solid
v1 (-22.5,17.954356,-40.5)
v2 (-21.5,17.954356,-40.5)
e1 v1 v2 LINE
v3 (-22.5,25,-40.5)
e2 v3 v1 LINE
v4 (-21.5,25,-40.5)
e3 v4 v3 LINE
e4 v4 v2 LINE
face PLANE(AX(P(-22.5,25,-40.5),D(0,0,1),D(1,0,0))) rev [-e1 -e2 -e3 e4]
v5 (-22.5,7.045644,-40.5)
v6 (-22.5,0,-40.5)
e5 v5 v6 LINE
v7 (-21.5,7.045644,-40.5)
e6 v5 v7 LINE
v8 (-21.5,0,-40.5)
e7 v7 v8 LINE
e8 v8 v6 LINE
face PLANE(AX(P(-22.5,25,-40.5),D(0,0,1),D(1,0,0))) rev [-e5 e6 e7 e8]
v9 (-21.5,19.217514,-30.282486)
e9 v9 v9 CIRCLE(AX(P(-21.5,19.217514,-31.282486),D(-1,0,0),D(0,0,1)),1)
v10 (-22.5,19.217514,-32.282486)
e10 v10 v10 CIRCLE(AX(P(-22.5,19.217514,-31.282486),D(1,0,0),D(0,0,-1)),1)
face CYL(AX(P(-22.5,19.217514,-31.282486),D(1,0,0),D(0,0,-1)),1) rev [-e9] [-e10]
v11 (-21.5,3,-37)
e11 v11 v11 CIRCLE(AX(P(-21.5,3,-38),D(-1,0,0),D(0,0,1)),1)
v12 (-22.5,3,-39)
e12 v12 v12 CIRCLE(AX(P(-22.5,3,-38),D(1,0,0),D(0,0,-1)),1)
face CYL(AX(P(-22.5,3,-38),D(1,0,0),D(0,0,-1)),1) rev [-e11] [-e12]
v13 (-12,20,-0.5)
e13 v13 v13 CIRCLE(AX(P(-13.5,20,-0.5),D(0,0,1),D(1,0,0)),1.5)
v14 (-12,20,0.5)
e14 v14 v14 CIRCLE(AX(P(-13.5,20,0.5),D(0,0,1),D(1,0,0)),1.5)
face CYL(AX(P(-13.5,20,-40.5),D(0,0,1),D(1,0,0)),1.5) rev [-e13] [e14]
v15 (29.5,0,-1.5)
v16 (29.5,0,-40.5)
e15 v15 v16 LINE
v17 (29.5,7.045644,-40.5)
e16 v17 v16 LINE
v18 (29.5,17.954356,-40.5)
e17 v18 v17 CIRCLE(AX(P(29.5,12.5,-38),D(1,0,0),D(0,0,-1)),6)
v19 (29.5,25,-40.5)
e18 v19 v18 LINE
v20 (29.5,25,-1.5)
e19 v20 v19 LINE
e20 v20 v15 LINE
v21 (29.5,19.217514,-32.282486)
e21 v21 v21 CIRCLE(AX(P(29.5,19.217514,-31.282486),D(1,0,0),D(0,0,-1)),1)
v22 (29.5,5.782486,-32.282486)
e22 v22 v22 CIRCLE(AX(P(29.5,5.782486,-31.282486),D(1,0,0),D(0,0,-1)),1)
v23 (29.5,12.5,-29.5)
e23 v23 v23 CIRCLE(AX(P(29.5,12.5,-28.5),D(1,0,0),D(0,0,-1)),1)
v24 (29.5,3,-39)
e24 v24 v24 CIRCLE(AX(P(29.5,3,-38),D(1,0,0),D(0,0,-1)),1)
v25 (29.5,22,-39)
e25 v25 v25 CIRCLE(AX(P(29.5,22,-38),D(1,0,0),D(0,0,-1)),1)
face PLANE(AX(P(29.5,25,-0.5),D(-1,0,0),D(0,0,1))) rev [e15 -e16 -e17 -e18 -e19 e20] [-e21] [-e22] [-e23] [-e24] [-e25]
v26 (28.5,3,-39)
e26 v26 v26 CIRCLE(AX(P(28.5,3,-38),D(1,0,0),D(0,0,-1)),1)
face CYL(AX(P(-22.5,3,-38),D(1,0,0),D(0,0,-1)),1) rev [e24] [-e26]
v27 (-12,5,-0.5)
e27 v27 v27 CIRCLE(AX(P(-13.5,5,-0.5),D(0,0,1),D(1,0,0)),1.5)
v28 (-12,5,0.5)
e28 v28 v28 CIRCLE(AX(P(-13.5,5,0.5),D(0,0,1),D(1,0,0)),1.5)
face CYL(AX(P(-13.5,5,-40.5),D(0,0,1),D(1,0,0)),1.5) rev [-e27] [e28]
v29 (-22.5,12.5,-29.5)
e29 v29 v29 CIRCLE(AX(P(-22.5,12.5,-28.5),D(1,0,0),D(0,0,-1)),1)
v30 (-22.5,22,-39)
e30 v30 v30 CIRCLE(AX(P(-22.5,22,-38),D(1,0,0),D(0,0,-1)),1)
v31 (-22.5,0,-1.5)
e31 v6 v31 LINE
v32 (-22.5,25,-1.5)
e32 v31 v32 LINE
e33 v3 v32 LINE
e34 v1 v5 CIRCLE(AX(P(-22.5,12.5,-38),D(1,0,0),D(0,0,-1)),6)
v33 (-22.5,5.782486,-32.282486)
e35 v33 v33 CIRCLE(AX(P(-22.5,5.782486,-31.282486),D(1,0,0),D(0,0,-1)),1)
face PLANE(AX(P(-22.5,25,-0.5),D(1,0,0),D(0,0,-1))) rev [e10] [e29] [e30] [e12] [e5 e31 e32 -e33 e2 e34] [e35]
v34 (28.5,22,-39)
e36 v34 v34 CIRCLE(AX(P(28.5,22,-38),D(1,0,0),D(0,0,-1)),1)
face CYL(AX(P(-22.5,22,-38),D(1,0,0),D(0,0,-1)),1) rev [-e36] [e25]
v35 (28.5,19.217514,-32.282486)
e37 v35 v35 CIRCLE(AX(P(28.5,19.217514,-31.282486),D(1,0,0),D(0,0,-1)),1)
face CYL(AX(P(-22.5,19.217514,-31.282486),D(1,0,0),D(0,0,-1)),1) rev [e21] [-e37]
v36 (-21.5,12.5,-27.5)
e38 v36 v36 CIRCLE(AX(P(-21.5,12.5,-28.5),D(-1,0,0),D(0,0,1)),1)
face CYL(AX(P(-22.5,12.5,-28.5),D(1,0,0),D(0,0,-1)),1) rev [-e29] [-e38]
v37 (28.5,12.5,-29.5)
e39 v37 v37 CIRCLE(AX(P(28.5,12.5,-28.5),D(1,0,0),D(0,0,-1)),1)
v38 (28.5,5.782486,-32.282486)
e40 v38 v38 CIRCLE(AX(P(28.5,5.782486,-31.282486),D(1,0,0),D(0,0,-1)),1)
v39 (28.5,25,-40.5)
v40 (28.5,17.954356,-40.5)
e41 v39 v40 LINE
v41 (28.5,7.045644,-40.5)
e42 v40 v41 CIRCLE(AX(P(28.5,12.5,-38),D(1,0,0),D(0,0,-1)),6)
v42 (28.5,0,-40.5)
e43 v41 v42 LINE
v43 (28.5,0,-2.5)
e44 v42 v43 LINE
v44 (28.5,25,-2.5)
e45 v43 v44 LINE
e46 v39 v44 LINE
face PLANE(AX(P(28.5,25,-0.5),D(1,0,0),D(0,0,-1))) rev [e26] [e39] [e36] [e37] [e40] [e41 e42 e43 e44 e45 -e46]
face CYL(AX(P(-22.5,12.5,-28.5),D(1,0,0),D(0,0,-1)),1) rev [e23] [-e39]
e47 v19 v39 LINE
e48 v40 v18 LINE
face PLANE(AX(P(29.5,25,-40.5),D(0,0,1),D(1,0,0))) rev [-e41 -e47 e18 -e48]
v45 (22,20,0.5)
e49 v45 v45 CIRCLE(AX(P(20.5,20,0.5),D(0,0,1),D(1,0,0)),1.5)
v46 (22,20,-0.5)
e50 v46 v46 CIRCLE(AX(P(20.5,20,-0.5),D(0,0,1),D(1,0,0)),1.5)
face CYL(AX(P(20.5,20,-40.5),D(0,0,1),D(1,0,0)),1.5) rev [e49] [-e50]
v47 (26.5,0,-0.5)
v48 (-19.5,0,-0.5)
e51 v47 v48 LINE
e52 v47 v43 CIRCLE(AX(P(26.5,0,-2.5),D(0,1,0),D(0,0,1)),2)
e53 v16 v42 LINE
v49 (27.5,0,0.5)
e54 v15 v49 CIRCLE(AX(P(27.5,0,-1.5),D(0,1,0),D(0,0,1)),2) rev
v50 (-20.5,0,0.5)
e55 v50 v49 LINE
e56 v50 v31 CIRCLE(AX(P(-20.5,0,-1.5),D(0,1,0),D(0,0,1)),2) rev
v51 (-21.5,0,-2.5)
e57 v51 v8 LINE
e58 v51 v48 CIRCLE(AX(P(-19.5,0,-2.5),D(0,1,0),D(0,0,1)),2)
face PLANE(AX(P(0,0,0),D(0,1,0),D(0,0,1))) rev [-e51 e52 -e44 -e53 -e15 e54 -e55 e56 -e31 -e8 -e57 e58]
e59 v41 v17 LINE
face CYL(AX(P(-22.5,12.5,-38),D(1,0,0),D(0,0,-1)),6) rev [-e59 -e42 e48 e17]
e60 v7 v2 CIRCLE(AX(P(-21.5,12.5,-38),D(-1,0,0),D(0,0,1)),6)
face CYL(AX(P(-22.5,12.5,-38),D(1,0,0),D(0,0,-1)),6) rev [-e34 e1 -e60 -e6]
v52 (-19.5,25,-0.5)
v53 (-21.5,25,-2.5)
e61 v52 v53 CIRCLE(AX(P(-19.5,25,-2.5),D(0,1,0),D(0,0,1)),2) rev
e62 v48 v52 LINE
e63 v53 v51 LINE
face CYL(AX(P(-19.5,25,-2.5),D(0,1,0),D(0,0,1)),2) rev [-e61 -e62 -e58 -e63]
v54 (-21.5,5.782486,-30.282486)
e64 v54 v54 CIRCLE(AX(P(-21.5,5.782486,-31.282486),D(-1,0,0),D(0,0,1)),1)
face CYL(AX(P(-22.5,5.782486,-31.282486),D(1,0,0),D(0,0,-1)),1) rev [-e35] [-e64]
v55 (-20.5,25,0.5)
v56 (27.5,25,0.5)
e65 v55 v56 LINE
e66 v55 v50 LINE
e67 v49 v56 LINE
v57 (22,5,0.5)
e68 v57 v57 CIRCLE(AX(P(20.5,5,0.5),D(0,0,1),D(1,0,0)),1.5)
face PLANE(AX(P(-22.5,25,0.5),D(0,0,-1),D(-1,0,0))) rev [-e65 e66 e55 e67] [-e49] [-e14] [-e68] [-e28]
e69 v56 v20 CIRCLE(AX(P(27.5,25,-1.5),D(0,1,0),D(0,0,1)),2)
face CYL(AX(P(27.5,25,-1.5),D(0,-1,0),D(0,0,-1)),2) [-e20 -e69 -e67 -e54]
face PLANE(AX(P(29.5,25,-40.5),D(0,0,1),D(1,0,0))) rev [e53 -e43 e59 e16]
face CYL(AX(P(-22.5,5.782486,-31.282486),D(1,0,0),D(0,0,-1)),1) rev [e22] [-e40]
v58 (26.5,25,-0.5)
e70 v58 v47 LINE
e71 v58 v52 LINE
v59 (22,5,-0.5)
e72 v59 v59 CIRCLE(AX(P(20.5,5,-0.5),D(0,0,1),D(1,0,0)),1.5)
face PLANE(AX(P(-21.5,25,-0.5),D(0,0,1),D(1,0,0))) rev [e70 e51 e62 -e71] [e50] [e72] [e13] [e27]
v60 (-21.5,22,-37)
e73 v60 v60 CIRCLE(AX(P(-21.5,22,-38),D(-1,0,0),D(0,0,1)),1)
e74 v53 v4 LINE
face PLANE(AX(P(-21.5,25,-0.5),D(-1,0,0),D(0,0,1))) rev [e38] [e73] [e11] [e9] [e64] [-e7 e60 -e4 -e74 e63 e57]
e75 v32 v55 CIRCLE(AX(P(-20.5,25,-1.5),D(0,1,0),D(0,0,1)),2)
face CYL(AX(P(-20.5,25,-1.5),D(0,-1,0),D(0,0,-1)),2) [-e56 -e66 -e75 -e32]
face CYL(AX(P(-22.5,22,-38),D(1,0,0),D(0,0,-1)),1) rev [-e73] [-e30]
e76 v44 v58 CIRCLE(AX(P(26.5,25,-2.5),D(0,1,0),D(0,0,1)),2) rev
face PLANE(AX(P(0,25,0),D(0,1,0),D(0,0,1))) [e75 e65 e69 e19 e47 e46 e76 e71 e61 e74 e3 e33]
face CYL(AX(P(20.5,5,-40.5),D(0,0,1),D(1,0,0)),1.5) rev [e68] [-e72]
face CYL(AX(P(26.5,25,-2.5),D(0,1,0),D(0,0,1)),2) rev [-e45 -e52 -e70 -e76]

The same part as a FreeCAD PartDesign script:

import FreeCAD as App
import Part
import Sketcher
Q = App.Units.Quantity


def edges_at(feature, points):
    """Names of the edges that pass closest to the given points."""
    edges = feature.Shape.Edges
    near = lambda p: min(range(len(edges)), key=lambda i: edges[i].distToShape(Part.Vertex(*p))[0])
    return sorted({f"Edge{near(p) + 1}" for p in points})


def add_polygon(sketch, points):
    """Adds a closed chain of lines whose ends are joined by coincident constraints."""
    first, n = sketch.GeometryCount, len(points)
    for a, b in zip(points, points[1:] + points[:1]):
        sketch.addGeometry(Part.LineSegment(App.Vector(*a, 0), App.Vector(*b, 0)), False)
    for i in range(n):
        sketch.addConstraint(Sketcher.Constraint("Coincident", first + i, 2, first + (i + 1) % n, 1))

doc = App.newDocument("Part")
body = doc.addObject("PartDesign::Body", "Body")

# Sketch on XZ plane
sketch1 = body.newObject("Sketcher::SketchObject", "Sketch")
sketch1.AttachmentSupport = (doc.getObject("XZ_Plane"), [""])
sketch1.MapMode = "FlatFace"
add_polygon(sketch1, [(28.5, -0.5), (-21.5, -0.5), (-21.5, -40.5), (-22.5, -40.5), (-22.5, 0.5), (29.5, 0.5), (29.5, -40.5), (28.5, -40.5)])  # lines 0-7
sketch1.addConstraint([
    Sketcher.Constraint("Horizontal", 0),
    Sketcher.Constraint("Vertical", 1),
    Sketcher.Constraint("Horizontal", 2),
    Sketcher.Constraint("Vertical", 3),
    Sketcher.Constraint("Horizontal", 4),
    Sketcher.Constraint("Vertical", 5),
    Sketcher.Constraint("Horizontal", 6),
    Sketcher.Constraint("Vertical", 7),
    Sketcher.Constraint("Horizontal", 2, 2, 5, 2),
    Sketcher.Constraint("Equal", 2, 6),
    Sketcher.Constraint("DistanceX", 0, 2, 0, 1, Q("50 mm")),
    Sketcher.Constraint("DistanceX", 2, 2, 2, 1, Q("1 mm")),
    Sketcher.Constraint("DistanceY", 1, 2, 1, 1, Q("40 mm")),
    Sketcher.Constraint("DistanceY", 3, 1, 3, 2, Q("41 mm")),
    Sketcher.Constraint("DistanceX", 0, 2, -1, 1, Q("21.5 mm")),
    Sketcher.Constraint("DistanceY", 0, 2, -1, 1, Q("0.5 mm")),
])
pad1 = body.newObject("PartDesign::Pad", "Pad")
pad1.Profile = sketch1
pad1.Length = 25
pad1.Reversed = True

# Sketch on YZ plane
sketch2 = body.newObject("Sketcher::SketchObject", "Sketch001")
sketch2.AttachmentSupport = (doc.getObject("YZ_Plane"), [""])
sketch2.MapMode = "FlatFace"
sketch2.AttachmentOffset = App.Placement(App.Vector(0, 0, 29.5), App.Rotation())
sketch2.addGeometry([
    Part.Circle(App.Vector(12.5, -28.5, 0), App.Vector(0, 0, 1), 1),  # 0
    Part.Circle(App.Vector(12.5, -38, 0), App.Vector(0, 0, 1), 6),  # 1
    Part.Circle(App.Vector(19.2, -31.3, 0), App.Vector(0, 0, 1), 1),  # 2
    Part.Circle(App.Vector(22, -38, 0), App.Vector(0, 0, 1), 1),  # 3
    Part.Circle(App.Vector(3, -38, 0), App.Vector(0, 0, 1), 1),  # 4
    Part.Circle(App.Vector(5.8, -31.3, 0), App.Vector(0, 0, 1), 1),  # 5
], False)
sketch2.addConstraint([
    Sketcher.Constraint("Equal", 0, 2),
    Sketcher.Constraint("Equal", 2, 3),
    Sketcher.Constraint("Equal", 3, 4),
    Sketcher.Constraint("Equal", 4, 5),
    Sketcher.Constraint("Horizontal", 1, 3, 3, 3),
    Sketcher.Constraint("Horizontal", 3, 3, 4, 3),
    Sketcher.Constraint("Horizontal", 2, 3, 5, 3),
    Sketcher.Constraint("Vertical", 0, 3, 1, 3),
    Sketcher.Constraint("Diameter", 0, Q("2 mm")),
    Sketcher.Constraint("Diameter", 1, Q("12 mm")),
    Sketcher.Constraint("DistanceY", 1, 3, -1, 1, Q("38 mm")),
    Sketcher.Constraint("DistanceX", -1, 1, 3, 3, Q("22 mm")),
    Sketcher.Constraint("DistanceX", -1, 1, 4, 3, Q("3 mm")),
    Sketcher.Constraint("DistanceX", -1, 1, 0, 3, Q("12.5 mm")),
    Sketcher.Constraint("DistanceY", 0, 3, -1, 1, Q("28.5 mm")),
    Sketcher.Constraint("DistanceX", 5, 3, 2, 3, Q("13.435029 mm")),
    Sketcher.Constraint("DistanceX", -1, 1, 2, 3, Q("19.217514 mm")),
    Sketcher.Constraint("DistanceY", 2, 3, -1, 1, Q("31.282486 mm")),
])
pocket1 = body.newObject("PartDesign::Pocket", "Pocket")
pocket1.Profile = sketch2
pocket1.Type = "ThroughAll"
doc.recompute()

fillet = body.newObject("PartDesign::Fillet", "Fillet")
fillet.Base = (pocket1, edges_at(pocket1, [
    (29.5, 12.5, 0.5),
    (-22.5, 12.5, 0.5),
    (-21.5, 12.5, -0.5),
    (28.5, 12.5, -0.5),
]))
fillet.Radius = 2

# Sketch on XY plane
sketch3 = body.newObject("Sketcher::SketchObject", "Sketch002")
sketch3.AttachmentSupport = (doc.getObject("XY_Plane"), [""])
sketch3.MapMode = "FlatFace"
sketch3.AttachmentOffset = App.Placement(App.Vector(0, 0, 0.5), App.Rotation())
sketch3.addGeometry([
    Part.Circle(App.Vector(-13.5, 20, 0), App.Vector(0, 0, 1), 1.5),
    Part.Circle(App.Vector(20.5, 20, 0), App.Vector(0, 0, 1), 1.5),
    Part.Circle(App.Vector(-13.5, 5, 0), App.Vector(0, 0, 1), 1.5),
    Part.Circle(App.Vector(20.5, 5, 0), App.Vector(0, 0, 1), 1.5),
], False)
sketch3.addConstraint([
    Sketcher.Constraint("Equal", 0, 1),
    Sketcher.Constraint("Equal", 1, 2),
    Sketcher.Constraint("Equal", 2, 3),
    Sketcher.Constraint("Horizontal", 0, 3, 1, 3),
    Sketcher.Constraint("Horizontal", 2, 3, 3, 3),
    Sketcher.Constraint("Vertical", 0, 3, 2, 3),
    Sketcher.Constraint("Vertical", 1, 3, 3, 3),
    Sketcher.Constraint("Diameter", 0, Q("3 mm")),
    Sketcher.Constraint("DistanceY", -1, 1, 0, 3, Q("20 mm")),
    Sketcher.Constraint("DistanceY", -1, 1, 2, 3, Q("5 mm")),
    Sketcher.Constraint("DistanceX", 0, 3, 1, 3, Q("34 mm")),
    Sketcher.Constraint("DistanceX", 0, 3, -1, 1, Q("13.5 mm")),
])
pocket2 = body.newObject("PartDesign::Pocket", "Pocket001")
pocket2.Profile = sketch3
pocket2.Type = "ThroughAll"

doc.recompute()
